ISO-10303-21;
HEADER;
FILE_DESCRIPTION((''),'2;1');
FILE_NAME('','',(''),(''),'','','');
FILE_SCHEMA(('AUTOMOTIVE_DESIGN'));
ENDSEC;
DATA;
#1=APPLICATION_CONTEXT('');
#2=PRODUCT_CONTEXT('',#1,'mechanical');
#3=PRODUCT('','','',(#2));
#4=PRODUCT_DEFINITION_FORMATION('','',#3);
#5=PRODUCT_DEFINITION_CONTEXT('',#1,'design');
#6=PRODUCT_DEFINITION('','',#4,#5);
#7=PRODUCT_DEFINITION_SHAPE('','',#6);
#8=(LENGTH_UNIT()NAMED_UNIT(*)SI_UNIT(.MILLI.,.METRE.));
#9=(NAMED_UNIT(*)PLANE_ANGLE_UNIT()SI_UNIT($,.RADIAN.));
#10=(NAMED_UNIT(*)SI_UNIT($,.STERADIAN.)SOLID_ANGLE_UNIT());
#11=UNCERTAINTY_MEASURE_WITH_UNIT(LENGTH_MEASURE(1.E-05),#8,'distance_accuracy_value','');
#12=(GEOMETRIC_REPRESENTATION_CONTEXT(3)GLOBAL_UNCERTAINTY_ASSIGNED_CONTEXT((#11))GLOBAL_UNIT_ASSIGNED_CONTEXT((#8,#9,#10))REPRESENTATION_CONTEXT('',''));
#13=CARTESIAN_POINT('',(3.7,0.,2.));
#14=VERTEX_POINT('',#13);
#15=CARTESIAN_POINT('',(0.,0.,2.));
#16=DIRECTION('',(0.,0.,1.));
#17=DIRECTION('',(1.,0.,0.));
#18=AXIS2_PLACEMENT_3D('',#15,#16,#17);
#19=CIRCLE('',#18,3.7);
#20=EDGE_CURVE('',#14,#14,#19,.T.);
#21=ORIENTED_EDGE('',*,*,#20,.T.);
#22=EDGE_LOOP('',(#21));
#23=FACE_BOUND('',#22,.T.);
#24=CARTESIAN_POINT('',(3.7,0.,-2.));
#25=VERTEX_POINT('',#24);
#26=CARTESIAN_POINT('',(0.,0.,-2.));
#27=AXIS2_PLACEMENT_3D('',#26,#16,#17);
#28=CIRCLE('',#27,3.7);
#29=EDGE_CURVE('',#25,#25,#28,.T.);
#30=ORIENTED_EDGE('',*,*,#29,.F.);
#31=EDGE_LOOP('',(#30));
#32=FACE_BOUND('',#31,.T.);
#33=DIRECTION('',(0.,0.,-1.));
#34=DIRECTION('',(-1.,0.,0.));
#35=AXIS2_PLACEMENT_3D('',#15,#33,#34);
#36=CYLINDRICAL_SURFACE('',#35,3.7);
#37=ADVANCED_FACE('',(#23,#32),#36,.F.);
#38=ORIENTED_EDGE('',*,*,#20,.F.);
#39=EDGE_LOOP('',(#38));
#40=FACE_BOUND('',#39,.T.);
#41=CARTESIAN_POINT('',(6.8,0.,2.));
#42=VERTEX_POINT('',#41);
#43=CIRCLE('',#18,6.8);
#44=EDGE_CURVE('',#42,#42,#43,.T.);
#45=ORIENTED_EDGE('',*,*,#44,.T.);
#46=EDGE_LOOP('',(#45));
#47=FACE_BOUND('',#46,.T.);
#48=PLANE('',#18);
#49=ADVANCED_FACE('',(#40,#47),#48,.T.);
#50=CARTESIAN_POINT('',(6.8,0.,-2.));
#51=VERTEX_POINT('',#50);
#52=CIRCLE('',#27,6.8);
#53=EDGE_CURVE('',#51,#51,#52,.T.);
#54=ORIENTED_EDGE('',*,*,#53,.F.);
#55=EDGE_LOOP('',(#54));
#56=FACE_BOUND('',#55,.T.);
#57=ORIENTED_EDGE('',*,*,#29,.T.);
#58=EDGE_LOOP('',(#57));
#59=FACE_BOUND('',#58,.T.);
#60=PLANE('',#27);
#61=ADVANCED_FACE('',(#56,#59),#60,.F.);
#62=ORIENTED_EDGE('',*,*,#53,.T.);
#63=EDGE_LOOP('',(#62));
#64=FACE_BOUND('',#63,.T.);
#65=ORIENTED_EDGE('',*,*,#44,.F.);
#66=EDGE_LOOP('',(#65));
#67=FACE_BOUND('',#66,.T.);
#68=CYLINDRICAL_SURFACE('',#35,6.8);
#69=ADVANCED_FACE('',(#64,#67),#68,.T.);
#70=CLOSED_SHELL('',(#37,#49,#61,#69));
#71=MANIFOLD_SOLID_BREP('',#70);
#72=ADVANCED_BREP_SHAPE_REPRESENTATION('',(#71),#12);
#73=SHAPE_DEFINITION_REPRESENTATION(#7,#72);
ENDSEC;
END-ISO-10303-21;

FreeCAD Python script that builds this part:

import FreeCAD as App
import Part
import Sketcher
Q = App.Units.Quantity

doc = App.newDocument("Part")
params = doc.addObject("Spreadsheet::Sheet", "Params")
for row, (alias, value) in enumerate([
    ("sketch1_diameter", "13.6 mm"),
    ("sketch1_diameter2", "7.4 mm"),
    ("pad1_length", "4 mm"),
], start=1):
    params.set(f"A{row}", alias)
    params.set(f"B{row}", "=" + value)
    params.setAlias(f"B{row}", alias)

body = doc.addObject("PartDesign::Body", "Body")

# Sketch on XY plane
sketch1 = body.newObject("Sketcher::SketchObject", "Sketch")
sketch1.AttachmentSupport = (doc.getObject("XY_Plane"), [""])
sketch1.MapMode = "FlatFace"
sketch1.addGeometry(Part.Circle(App.Vector(0, 0, 0), App.Vector(0, 0, 1), 6.8), False)
sketch1.addGeometry(Part.Circle(App.Vector(0, 0, 0), App.Vector(0, 0, 1), 3.7), False)
sketch1.addConstraint(Sketcher.Constraint("Coincident", 0, 3, -1, 1))
sketch1.addConstraint(Sketcher.Constraint("Coincident", 1, 3, -1, 1))
sketch1.addConstraint(Sketcher.Constraint("Diameter", 0, Q("13.6 mm")))
sketch1.addConstraint(Sketcher.Constraint("Diameter", 1, Q("7.4 mm")))
sketch1.setExpression("Constraints[2]", "Params.sketch1_diameter")
sketch1.setExpression("Constraints[3]", "Params.sketch1_diameter2")
pad1 = body.newObject("PartDesign::Pad", "Pad")
pad1.Profile = sketch1
pad1.setExpression("Length", "Params.pad1_length")
pad1.Midplane = True

doc.recompute()
